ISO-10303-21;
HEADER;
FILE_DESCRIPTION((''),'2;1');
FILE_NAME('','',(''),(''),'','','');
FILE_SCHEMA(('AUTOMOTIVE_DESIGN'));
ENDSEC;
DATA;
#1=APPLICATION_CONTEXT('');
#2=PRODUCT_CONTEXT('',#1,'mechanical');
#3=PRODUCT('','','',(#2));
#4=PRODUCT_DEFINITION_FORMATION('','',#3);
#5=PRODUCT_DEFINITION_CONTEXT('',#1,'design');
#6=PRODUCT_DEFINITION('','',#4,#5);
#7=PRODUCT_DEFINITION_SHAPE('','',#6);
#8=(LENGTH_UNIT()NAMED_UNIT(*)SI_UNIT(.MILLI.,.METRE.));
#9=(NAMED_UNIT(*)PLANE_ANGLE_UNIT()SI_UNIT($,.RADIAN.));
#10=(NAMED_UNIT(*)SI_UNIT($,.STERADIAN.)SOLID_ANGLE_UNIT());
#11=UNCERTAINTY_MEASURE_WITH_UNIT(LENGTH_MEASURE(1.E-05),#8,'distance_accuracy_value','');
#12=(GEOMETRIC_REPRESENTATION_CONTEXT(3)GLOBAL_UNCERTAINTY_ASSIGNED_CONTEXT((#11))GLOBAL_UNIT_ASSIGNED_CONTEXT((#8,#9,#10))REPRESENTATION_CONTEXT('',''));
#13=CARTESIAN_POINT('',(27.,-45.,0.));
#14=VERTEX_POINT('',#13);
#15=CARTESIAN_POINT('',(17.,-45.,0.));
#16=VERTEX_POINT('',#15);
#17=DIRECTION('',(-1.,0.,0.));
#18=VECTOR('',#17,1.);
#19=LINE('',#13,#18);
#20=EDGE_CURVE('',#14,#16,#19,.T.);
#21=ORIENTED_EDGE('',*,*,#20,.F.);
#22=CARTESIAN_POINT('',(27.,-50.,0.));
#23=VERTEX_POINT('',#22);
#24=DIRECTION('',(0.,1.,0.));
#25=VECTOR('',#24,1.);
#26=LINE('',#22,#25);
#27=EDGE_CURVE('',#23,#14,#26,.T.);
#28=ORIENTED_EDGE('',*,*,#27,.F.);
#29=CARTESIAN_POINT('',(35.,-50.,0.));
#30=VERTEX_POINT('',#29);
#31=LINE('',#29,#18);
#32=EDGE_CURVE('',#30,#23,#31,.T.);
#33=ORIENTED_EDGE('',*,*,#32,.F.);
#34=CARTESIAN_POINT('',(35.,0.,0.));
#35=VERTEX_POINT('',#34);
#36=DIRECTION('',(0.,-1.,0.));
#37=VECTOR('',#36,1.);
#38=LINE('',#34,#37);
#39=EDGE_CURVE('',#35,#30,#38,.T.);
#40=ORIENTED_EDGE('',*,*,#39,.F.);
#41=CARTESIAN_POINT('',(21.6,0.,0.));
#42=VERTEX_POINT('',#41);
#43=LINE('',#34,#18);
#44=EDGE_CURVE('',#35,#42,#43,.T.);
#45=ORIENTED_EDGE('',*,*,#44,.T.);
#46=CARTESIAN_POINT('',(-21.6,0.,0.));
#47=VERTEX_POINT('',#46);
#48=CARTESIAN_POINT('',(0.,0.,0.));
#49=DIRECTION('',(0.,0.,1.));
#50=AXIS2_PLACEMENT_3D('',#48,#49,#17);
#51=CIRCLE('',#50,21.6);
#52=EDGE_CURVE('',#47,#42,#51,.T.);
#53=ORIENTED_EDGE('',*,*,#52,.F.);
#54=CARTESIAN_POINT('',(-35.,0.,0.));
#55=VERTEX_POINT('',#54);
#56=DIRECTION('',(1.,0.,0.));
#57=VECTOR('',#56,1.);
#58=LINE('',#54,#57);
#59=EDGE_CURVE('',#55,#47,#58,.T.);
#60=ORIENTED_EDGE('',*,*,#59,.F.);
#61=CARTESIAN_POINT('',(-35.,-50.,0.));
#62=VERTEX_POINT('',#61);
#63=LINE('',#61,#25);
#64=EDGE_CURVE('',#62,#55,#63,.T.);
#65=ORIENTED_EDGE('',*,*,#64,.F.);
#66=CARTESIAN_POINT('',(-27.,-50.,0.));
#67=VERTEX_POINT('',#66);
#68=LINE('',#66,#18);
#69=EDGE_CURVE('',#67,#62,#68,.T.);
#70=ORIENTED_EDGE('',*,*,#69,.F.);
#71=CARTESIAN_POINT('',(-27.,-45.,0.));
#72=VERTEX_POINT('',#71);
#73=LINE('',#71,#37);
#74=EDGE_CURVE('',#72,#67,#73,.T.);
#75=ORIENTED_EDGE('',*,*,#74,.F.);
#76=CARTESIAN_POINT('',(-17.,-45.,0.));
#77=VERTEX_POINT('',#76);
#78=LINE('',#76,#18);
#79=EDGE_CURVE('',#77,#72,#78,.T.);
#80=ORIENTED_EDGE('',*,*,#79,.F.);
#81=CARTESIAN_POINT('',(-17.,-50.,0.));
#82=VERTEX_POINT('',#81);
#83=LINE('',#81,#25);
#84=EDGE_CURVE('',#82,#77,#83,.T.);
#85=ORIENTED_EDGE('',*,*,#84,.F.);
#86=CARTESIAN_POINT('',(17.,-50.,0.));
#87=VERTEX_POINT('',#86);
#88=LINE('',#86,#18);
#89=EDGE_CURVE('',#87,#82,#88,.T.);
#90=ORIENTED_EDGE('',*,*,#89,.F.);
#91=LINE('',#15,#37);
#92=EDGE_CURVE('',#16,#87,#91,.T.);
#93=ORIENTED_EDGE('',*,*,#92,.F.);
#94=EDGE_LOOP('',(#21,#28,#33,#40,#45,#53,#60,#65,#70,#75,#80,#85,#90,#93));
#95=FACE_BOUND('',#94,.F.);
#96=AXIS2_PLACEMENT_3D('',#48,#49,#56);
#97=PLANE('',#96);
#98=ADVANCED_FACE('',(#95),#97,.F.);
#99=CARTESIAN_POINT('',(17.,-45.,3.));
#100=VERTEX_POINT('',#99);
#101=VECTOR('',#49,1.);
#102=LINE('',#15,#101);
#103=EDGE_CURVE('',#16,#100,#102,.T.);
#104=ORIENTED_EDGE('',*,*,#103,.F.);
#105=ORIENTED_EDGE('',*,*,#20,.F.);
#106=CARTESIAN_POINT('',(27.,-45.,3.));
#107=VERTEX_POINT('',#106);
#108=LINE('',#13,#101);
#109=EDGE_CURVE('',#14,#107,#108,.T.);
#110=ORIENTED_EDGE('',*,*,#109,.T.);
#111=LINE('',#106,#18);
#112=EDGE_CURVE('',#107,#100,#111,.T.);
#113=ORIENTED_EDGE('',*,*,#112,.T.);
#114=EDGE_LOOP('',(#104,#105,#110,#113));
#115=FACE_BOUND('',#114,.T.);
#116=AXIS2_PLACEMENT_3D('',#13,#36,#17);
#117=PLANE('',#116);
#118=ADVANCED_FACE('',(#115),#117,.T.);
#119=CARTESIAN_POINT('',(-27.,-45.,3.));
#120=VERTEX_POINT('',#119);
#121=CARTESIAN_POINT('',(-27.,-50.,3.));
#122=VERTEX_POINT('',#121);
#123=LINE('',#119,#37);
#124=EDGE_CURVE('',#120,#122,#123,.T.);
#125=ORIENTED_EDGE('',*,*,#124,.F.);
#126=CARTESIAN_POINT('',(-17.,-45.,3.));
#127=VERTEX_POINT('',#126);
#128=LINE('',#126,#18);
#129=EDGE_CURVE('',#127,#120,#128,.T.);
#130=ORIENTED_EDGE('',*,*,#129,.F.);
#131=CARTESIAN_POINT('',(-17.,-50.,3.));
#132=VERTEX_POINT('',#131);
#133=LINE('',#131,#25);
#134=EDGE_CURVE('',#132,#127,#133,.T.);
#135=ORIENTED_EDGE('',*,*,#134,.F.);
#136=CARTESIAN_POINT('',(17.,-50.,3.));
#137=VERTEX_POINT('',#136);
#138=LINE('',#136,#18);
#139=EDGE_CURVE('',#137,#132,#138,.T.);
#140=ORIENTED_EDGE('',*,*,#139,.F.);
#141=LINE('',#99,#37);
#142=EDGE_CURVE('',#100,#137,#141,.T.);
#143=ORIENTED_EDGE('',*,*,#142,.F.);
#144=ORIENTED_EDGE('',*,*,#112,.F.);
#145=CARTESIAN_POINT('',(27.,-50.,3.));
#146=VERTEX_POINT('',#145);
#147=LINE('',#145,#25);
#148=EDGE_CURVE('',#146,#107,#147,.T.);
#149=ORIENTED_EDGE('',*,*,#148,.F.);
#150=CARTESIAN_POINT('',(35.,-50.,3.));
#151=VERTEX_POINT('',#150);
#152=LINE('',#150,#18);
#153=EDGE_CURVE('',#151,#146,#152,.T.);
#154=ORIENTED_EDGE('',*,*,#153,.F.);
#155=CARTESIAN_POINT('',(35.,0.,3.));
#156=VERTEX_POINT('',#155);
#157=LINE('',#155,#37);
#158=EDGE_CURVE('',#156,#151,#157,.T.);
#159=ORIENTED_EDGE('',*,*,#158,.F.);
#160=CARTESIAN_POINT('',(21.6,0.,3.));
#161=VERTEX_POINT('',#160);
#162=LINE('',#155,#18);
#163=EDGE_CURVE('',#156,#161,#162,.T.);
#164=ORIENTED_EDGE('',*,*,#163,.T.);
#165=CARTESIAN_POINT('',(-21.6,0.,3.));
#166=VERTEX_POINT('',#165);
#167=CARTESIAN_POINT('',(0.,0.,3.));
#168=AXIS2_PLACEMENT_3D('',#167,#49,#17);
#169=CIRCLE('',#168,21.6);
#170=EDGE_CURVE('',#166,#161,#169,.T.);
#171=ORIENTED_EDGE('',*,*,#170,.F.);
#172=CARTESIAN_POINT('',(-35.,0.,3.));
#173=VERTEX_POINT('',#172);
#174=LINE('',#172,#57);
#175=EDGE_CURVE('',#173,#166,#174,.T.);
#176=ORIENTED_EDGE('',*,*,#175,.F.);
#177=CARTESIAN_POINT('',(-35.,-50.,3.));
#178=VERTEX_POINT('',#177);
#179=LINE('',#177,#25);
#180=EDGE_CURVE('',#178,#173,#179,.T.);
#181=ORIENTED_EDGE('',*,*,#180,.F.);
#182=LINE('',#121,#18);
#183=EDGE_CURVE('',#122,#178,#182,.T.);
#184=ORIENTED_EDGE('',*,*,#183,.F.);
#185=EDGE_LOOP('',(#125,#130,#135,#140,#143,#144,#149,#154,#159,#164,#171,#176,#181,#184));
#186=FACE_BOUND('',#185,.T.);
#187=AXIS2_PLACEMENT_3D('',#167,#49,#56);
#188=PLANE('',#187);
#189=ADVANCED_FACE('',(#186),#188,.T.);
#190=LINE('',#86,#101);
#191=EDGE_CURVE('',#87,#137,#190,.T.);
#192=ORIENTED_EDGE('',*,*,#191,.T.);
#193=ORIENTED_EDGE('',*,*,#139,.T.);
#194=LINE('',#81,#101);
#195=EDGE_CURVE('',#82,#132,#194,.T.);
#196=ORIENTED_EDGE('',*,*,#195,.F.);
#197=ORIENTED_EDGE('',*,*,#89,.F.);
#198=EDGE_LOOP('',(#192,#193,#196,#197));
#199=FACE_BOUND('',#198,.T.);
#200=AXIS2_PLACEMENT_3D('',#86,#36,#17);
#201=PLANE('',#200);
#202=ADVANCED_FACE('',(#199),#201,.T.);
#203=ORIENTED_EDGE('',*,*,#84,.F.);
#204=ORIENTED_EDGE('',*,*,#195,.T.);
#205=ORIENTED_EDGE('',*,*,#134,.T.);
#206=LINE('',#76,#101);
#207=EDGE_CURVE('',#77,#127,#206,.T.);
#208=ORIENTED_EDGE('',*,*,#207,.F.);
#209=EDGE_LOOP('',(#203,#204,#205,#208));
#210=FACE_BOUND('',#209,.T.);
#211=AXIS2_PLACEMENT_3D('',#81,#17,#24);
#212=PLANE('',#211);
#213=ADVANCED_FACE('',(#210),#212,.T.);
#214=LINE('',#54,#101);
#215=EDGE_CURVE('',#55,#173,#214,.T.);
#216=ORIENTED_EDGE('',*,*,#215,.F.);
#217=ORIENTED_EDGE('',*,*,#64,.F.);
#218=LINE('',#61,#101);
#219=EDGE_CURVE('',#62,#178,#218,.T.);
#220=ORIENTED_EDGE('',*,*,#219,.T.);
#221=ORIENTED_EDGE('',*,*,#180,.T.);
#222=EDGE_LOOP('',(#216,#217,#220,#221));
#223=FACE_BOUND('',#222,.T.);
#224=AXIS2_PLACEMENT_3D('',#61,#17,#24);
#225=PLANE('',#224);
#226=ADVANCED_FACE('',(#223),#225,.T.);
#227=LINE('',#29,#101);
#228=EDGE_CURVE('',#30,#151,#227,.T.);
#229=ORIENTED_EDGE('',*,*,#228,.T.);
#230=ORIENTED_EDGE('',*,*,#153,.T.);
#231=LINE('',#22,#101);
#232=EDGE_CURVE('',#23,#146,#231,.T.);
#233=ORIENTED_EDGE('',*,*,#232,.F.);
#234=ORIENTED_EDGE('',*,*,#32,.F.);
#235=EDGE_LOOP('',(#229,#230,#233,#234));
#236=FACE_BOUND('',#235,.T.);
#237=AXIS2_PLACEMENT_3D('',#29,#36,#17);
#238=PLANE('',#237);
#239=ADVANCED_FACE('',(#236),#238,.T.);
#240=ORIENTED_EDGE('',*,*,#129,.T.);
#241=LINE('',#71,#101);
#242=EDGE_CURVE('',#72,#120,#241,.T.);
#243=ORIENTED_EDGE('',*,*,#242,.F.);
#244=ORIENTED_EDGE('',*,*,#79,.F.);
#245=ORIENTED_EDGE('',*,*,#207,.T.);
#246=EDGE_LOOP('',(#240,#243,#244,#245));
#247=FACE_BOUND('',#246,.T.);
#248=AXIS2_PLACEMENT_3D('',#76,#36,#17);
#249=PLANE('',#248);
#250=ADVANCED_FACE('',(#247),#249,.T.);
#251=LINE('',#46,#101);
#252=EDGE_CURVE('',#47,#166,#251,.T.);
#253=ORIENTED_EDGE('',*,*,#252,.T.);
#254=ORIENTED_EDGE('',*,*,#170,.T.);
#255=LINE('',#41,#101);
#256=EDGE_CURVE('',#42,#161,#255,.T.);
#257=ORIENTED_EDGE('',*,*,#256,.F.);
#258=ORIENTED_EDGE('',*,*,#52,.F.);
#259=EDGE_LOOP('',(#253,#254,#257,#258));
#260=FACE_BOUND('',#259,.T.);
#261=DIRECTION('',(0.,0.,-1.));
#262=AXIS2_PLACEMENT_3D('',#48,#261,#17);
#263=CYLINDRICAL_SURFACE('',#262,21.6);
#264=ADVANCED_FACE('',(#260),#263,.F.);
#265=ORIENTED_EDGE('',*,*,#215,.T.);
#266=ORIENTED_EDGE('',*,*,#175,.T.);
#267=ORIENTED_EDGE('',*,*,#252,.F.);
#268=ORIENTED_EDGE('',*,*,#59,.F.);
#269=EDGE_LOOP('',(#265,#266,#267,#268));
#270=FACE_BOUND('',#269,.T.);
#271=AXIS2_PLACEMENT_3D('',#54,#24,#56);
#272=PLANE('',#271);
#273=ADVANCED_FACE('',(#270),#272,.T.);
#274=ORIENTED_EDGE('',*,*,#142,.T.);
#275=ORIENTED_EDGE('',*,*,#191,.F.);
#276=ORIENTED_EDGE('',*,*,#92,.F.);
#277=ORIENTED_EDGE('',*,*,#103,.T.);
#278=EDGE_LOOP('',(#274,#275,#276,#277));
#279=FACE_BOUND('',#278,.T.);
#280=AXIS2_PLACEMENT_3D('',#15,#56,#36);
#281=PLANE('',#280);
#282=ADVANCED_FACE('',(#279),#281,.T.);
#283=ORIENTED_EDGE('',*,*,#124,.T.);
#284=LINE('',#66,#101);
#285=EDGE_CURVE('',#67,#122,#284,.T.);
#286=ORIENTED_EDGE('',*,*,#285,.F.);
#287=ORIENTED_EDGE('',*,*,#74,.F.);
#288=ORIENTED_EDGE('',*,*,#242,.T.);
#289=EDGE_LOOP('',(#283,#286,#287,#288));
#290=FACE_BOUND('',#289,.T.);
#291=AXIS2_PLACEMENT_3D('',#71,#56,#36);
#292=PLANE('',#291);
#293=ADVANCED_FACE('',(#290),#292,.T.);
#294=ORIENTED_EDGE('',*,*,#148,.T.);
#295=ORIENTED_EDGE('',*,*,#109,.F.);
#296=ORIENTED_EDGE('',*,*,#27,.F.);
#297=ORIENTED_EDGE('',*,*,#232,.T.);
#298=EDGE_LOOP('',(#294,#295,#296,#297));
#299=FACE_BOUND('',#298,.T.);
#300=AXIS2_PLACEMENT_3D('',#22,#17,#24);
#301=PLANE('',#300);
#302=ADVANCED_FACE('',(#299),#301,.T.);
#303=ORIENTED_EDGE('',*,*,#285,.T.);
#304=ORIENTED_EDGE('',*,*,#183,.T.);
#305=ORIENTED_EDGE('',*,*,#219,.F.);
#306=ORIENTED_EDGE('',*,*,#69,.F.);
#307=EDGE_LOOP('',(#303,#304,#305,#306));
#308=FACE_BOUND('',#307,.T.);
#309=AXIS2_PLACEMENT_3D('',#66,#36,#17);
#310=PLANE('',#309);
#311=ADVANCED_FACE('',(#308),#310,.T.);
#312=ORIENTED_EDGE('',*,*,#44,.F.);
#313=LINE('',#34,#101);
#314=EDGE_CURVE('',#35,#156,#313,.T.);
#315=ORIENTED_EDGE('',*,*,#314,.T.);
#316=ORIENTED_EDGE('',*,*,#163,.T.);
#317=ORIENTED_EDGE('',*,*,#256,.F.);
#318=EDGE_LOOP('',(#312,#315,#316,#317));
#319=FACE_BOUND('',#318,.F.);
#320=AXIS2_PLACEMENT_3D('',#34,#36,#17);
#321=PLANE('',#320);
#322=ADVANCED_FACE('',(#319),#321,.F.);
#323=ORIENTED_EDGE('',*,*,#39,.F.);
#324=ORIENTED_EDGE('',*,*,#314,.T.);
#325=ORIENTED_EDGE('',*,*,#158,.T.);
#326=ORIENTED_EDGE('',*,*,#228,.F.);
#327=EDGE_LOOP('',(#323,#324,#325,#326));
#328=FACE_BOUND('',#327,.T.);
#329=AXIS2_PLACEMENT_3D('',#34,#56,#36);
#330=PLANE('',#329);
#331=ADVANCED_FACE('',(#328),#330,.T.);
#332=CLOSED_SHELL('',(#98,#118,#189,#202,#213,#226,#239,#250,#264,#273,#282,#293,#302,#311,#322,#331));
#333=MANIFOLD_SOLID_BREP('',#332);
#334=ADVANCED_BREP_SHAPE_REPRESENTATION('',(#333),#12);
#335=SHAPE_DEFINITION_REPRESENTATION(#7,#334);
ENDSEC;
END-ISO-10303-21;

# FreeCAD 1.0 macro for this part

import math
import FreeCAD as App
import Part
import Sketcher
from FreeCAD import Vector

doc = App.newDocument("Part")
body = doc.addObject("PartDesign::Body", "Body")

# Sketch on XY plane
sketch1 = doc.addObject("Sketcher::SketchObject", "Sketch")
body.addObject(sketch1)
sketch1.AttachmentSupport = (doc.XY_Plane, [""])
sketch1.MapMode = "FlatFace"
sketch1.addGeometry([
    Part.LineSegment(Vector(35, -50, 0), Vector(35, 0, 0)),  # 0
    Part.LineSegment(Vector(35, 0, 0), Vector(21.6, 0, 0)),  # 1
    Part.ArcOfCircle(Part.Circle(Vector(0, 0, 0), Vector(0, 0, 1), 21.6), math.radians(180), math.radians(360)),  # 2
    Part.LineSegment(Vector(-21.6, 0, 0), Vector(-35, 0, 0)),  # 3
    Part.LineSegment(Vector(-35, 0, 0), Vector(-35, -50, 0)),  # 4
    Part.LineSegment(Vector(-35, -50, 0), Vector(-27, -50, 0)),  # 5
    Part.LineSegment(Vector(-27, -50, 0), Vector(-27, -45, 0)),  # 6
    Part.LineSegment(Vector(-27, -45, 0), Vector(-17, -45, 0)),  # 7
    Part.LineSegment(Vector(-17, -45, 0), Vector(-17, -50, 0)),  # 8
    Part.LineSegment(Vector(-17, -50, 0), Vector(17, -50, 0)),  # 9
    Part.LineSegment(Vector(17, -50, 0), Vector(17, -45, 0)),  # 10
    Part.LineSegment(Vector(17, -45, 0), Vector(27, -45, 0)),  # 11
    Part.LineSegment(Vector(27, -45, 0), Vector(27, -50, 0)),  # 12
    Part.LineSegment(Vector(27, -50, 0), Vector(35, -50, 0)),  # 13
], False)
sketch1.addConstraint([
    Sketcher.Constraint("Coincident", 0, 2, 1, 1),
    Sketcher.Constraint("Coincident", 1, 2, 2, 2),
    Sketcher.Constraint("Coincident", 2, 1, 3, 1),
    Sketcher.Constraint("Coincident", 3, 2, 4, 1),
    Sketcher.Constraint("Coincident", 4, 2, 5, 1),
    Sketcher.Constraint("Coincident", 5, 2, 6, 1),
    Sketcher.Constraint("Coincident", 6, 2, 7, 1),
    Sketcher.Constraint("Coincident", 7, 2, 8, 1),
    Sketcher.Constraint("Coincident", 8, 2, 9, 1),
    Sketcher.Constraint("Coincident", 9, 2, 10, 1),
    Sketcher.Constraint("Coincident", 10, 2, 11, 1),
    Sketcher.Constraint("Coincident", 11, 2, 12, 1),
    Sketcher.Constraint("Coincident", 12, 2, 13, 1),
    Sketcher.Constraint("Coincident", 13, 2, 0, 1),
    Sketcher.Constraint("Vertical", 0),
    Sketcher.Constraint("Horizontal", 1),
    Sketcher.Constraint("Horizontal", 3),
    Sketcher.Constraint("Vertical", 4),
    Sketcher.Constraint("Horizontal", 5),
    Sketcher.Constraint("Vertical", 6),
    Sketcher.Constraint("Horizontal", 7),
    Sketcher.Constraint("Vertical", 8),
    Sketcher.Constraint("Horizontal", 9),
    Sketcher.Constraint("Vertical", 10),
    Sketcher.Constraint("Horizontal", 11),
    Sketcher.Constraint("Vertical", 12),
    Sketcher.Constraint("Horizontal", 13),
    Sketcher.Constraint("Coincident", 2, 3, -1, 1),
    Sketcher.Constraint("Symmetric", 0, 2, 3, 2, -1, 1),
    Sketcher.Constraint("Symmetric", 7, 2, 10, 2, -2),
    Sketcher.Constraint("Symmetric", 5, 2, 12, 2, -2),
    Sketcher.Constraint("PointOnObject", 0, 2, -1),
    Sketcher.Constraint("Horizontal", 5, 2, 8, 2),
    Sketcher.Constraint("Radius", 2, 21.6),
    Sketcher.Constraint("DistanceX", 5, 1, 5, 2, 8.0),
    Sketcher.Constraint("DistanceX", 7, 1, 7, 2, 10.0),
    Sketcher.Constraint("DistanceY", 0, 1, 0, 2, 50.0),
    Sketcher.Constraint("DistanceY", 6, 1, 6, 2, 5.0),
    Sketcher.Constraint("DistanceX", -1, 1, 0, 2, 35.0),
])
pad1 = doc.addObject("PartDesign::Pad", "Pad")
body.addObject(pad1)
pad1.Profile = sketch1
pad1.Length = 3

doc.recompute()
